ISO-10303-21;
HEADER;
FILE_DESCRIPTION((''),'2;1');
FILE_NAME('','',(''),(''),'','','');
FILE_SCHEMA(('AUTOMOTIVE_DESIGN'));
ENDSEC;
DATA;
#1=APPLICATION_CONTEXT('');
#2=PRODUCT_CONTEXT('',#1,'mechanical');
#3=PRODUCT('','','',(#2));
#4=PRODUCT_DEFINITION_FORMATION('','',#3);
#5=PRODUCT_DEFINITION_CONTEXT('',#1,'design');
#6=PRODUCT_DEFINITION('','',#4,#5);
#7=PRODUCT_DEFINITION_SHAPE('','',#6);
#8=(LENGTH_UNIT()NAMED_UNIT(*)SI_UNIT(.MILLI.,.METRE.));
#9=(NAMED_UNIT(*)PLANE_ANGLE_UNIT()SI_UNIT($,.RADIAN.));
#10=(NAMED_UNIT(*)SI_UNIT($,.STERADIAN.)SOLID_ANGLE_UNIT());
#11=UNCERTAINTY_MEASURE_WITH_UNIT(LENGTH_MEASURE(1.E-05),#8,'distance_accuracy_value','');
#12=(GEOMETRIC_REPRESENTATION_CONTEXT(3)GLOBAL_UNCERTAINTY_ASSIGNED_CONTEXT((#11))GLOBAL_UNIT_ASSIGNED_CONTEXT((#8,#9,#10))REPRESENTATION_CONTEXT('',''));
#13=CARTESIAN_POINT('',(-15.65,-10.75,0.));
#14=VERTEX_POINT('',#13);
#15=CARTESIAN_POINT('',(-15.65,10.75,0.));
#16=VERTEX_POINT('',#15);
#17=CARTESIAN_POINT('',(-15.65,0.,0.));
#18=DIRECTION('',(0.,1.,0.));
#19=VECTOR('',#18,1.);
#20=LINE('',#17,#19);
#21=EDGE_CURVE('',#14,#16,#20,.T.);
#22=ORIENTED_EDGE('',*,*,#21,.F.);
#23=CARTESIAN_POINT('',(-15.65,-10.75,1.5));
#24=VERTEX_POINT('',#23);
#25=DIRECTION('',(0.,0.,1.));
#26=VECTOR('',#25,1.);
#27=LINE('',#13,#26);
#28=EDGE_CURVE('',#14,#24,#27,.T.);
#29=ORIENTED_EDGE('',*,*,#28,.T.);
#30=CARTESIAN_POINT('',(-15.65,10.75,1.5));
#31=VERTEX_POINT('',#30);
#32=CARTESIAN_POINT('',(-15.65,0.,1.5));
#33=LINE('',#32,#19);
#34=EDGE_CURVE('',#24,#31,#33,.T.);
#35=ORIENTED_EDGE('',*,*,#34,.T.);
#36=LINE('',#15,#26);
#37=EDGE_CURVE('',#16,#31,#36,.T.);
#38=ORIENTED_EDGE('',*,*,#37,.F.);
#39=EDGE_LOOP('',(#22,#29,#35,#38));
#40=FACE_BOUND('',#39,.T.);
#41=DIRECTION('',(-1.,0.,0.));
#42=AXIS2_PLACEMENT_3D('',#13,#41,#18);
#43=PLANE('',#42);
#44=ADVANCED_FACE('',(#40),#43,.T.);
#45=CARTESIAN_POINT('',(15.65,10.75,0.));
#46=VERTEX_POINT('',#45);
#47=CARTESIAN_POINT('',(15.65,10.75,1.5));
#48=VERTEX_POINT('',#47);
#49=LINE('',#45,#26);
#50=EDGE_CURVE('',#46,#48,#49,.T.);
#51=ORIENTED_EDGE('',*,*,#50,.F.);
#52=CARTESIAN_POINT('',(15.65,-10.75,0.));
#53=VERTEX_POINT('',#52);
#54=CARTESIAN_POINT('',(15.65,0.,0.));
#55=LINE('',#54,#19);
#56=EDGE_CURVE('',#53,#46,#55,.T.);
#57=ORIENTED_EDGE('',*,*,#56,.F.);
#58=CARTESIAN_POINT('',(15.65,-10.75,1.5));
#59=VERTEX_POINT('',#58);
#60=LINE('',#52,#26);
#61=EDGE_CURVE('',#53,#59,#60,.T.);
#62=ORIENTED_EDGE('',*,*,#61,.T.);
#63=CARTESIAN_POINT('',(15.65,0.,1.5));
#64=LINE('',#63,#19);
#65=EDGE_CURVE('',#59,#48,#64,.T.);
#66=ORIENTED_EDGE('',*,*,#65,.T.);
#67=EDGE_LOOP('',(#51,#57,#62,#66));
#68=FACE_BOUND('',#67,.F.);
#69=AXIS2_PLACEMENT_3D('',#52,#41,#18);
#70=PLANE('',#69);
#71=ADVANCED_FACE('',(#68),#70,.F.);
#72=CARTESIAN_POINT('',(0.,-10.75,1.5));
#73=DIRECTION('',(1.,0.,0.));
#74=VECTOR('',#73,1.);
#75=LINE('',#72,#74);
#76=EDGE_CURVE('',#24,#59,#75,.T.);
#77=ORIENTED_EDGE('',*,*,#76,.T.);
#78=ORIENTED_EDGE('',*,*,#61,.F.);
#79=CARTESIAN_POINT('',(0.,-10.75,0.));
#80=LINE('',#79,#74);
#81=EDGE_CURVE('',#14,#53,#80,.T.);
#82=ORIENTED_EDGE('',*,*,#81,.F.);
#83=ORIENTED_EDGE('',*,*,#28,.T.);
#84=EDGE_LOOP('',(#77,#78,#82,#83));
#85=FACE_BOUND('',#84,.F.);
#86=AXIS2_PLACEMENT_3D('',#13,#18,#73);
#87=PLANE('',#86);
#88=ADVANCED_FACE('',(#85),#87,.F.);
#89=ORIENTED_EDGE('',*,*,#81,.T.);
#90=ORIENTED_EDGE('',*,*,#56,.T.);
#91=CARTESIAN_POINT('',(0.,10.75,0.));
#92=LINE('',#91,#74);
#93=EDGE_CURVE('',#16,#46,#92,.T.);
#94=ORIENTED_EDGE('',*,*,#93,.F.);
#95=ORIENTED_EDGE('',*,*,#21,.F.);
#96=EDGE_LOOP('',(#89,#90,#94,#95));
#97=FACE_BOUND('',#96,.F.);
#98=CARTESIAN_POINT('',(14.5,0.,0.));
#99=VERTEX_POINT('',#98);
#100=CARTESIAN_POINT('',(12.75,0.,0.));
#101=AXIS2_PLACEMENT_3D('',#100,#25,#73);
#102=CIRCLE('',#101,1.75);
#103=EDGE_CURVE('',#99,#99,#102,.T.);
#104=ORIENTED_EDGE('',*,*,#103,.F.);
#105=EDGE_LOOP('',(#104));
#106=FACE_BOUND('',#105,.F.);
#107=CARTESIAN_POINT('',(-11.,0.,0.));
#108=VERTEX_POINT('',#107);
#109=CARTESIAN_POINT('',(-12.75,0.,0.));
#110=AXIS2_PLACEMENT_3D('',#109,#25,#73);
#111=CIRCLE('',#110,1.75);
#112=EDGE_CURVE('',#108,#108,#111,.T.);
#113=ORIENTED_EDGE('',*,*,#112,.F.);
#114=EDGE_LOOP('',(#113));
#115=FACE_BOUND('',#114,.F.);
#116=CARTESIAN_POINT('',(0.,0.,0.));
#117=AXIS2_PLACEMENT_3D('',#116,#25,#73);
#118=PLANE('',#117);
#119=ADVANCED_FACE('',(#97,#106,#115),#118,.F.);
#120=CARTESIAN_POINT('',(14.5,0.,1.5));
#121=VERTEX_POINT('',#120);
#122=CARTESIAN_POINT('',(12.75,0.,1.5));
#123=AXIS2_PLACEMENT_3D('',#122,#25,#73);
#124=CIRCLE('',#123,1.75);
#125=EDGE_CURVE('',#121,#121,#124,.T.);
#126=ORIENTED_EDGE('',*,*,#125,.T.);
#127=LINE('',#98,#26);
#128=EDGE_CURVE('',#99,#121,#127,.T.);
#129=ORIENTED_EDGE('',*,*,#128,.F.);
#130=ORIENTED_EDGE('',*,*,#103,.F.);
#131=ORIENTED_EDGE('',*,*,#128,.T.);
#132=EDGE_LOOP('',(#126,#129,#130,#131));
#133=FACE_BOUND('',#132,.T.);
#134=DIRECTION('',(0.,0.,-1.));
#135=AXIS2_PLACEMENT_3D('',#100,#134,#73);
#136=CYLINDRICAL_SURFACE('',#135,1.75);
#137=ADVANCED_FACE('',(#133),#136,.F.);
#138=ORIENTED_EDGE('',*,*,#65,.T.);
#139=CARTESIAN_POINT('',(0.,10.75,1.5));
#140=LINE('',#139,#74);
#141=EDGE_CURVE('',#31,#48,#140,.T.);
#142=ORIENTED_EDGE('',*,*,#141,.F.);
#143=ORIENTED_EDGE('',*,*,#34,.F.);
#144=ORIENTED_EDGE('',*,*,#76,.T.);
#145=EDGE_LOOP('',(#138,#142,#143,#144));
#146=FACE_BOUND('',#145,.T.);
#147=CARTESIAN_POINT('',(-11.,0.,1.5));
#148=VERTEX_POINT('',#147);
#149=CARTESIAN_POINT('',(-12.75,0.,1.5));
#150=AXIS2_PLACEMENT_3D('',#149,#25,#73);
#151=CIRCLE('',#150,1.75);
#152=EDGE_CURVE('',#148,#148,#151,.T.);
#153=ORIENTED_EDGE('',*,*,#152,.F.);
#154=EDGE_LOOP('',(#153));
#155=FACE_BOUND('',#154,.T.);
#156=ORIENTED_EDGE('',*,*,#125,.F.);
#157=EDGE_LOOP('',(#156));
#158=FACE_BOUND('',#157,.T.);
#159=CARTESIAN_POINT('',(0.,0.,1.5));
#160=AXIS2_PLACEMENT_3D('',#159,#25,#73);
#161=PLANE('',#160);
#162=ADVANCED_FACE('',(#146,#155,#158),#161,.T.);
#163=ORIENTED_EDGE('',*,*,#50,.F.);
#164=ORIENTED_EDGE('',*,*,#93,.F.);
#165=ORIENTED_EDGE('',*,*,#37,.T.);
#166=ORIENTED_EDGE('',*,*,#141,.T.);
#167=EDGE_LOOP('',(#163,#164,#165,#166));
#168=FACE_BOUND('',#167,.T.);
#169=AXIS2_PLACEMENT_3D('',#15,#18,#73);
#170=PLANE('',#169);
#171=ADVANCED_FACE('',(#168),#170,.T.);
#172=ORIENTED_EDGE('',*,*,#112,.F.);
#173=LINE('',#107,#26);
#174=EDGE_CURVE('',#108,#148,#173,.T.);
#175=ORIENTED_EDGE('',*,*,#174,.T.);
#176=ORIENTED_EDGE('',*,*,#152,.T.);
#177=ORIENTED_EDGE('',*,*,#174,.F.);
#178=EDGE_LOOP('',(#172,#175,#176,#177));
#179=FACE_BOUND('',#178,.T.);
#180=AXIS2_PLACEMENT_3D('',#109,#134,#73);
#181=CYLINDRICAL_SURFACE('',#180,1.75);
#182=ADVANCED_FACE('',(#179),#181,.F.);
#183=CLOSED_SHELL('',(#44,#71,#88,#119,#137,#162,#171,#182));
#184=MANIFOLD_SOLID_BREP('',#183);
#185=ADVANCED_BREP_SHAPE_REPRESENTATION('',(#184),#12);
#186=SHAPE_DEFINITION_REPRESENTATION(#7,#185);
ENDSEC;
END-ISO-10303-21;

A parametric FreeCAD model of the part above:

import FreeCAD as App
import Part
import Sketcher
from FreeCAD import Vector
Q = App.Units.Quantity


def add_polygon(sketch, points):
    """Adds a closed chain of lines whose ends are joined by coincident constraints."""
    first, n = sketch.GeometryCount, len(points)
    for a, b in zip(points, points[1:] + points[:1]):
        sketch.addGeometry(Part.LineSegment(App.Vector(*a, 0), App.Vector(*b, 0)), False)
    for i in range(n):
        sketch.addConstraint(Sketcher.Constraint("Coincident", first + i, 2, first + (i + 1) % n, 1))

doc = App.newDocument("Part")
body = doc.addObject("PartDesign::Body", "Body")

sketch1 = body.newObject("Sketcher::SketchObject", "Sketch")
sketch1.AttachmentSupport = (doc.getObject("XY_Plane"), [""])
sketch1.MapMode = "FlatFace"
add_polygon(sketch1, [(-15.7, 10.8), (-15.7, -10.8), (15.7, -10.8), (15.7, 10.8)])
sketch1.addGeometry(Part.Circle(Vector(-12.8, 0, 0), Vector(0, 0, 1), 1.8), False)
sketch1.addGeometry(Part.Circle(Vector(12.8, 0, 0), Vector(0, 0, 1), 1.8), False)
sketch1.addConstraint(Sketcher.Constraint("Vertical", 0))
sketch1.addConstraint(Sketcher.Constraint("Horizontal", 1))
sketch1.addConstraint(Sketcher.Constraint("Vertical", 2))
sketch1.addConstraint(Sketcher.Constraint("Horizontal", 3))
sketch1.addConstraint(Sketcher.Constraint("Equal", 4, 5))
sketch1.addConstraint(Sketcher.Constraint("Symmetric", 4, 3, 5, 3, -1, 1))
sketch1.addConstraint(Sketcher.Constraint("Symmetric", 0, 2, 2, 2, -1, 1))
sketch1.addConstraint(Sketcher.Constraint("PointOnObject", 4, 3, -1))
sketch1.addConstraint(Sketcher.Constraint("Diameter", 4, Q("3.5 mm")))
sketch1.addConstraint(Sketcher.Constraint("DistanceX", 1, 1, 1, 2, Q("31.3 mm")))
sketch1.addConstraint(Sketcher.Constraint("DistanceY", 0, 2, 0, 1, Q("21.5 mm")))
sketch1.addConstraint(Sketcher.Constraint("DistanceX", 4, 3, 5, 3, Q("25.5 mm")))
pad1 = body.newObject("PartDesign::Pad", "Pad")
pad1.Profile = sketch1
pad1.Length = 1.5

doc.recompute()
